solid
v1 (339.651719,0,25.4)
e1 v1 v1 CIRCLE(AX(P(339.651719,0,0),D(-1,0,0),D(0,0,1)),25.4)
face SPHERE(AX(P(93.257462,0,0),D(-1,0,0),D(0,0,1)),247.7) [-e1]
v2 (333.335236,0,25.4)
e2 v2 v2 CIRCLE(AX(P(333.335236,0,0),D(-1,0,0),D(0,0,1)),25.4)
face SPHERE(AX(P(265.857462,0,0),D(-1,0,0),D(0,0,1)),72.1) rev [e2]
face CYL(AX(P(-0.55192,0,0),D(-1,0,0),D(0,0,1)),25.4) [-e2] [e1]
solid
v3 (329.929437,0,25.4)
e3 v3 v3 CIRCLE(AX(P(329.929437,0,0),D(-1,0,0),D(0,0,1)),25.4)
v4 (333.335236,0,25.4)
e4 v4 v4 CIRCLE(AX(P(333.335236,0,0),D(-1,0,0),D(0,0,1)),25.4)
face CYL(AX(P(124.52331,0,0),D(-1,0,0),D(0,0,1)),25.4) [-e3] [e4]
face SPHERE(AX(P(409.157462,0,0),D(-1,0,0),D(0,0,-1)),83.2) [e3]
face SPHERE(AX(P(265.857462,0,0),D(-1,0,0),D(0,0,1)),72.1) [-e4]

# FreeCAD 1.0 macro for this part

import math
import FreeCAD as App
import Part
import Sketcher
Q = App.Units.Quantity

doc = App.newDocument("Part")
body = doc.addObject("PartDesign::Body", "Body")

# Sketch on XZ plane
sketch1 = body.newObject("Sketcher::SketchObject", "Sketch")
sketch1.AttachmentSupport = (doc.getObject("XZ_Plane"), [""])
sketch1.MapMode = "FlatFace"
sketch1.addGeometry([
    Part.ArcOfCircle(Part.Circle(App.Vector(409.2, 0, 0), App.Vector(0, 0, 1), 83.2), math.radians(180), math.radians(197.78)),
    Part.LineSegment(App.Vector(326, 0, 0), App.Vector(338, 0, 0)),
    Part.ArcOfCircle(Part.Circle(App.Vector(265.9, 0, 0), App.Vector(0, 0, 1), 72.1), math.radians(-21), math.radians(0)),
    Part.LineSegment(App.Vector(333.3, -25.4, 0), App.Vector(329.9, -25.4, 0)),
], False)
sketch1.addConstraint([
    Sketcher.Constraint("Coincident", 0, 1, 1, 1),
    Sketcher.Constraint("Coincident", 1, 2, 2, 2),
    Sketcher.Constraint("Coincident", 2, 1, 3, 1),
    Sketcher.Constraint("Coincident", 3, 2, 0, 2),
    Sketcher.Constraint("Horizontal", 1),
    Sketcher.Constraint("Horizontal", 3),
    Sketcher.Constraint("PointOnObject", 0, 3, -1),
    Sketcher.Constraint("PointOnObject", 2, 3, -1),
    Sketcher.Constraint("PointOnObject", 0, 1, -1),
    Sketcher.Constraint("Radius", 0, Q("83.2 mm")),
    Sketcher.Constraint("Radius", 2, Q("72.1 mm")),
    Sketcher.Constraint("DistanceX", 1, 1, 1, 2, Q("12 mm")),
    Sketcher.Constraint("DistanceY", 2, 1, -1, 1, Q("25.4 mm")),
    Sketcher.Constraint("DistanceX", -1, 1, 0, 3, Q("409.157462 mm")),
])
revolution = body.newObject("PartDesign::Revolution", "Revolution")
revolution.Profile = sketch1
revolution.ReferenceAxis = (sketch1, ["H_Axis"])
revolution.Angle = 360
body2 = doc.addObject("PartDesign::Body", "Body001")

# Sketch on XZ plane
sketch2 = body2.newObject("Sketcher::SketchObject", "Sketch001")
sketch2.AttachmentSupport = (doc.getObject("XZ_Plane001"), [""])
sketch2.MapMode = "FlatFace"
sketch2.addGeometry([
    Part.LineSegment(App.Vector(339.7, -25.4, 0), App.Vector(333.3, -25.4, 0)),
    Part.ArcOfCircle(Part.Circle(App.Vector(265.9, 0, 0), App.Vector(0, 0, 1), 72.1), math.radians(-21), math.radians(0)),
    Part.LineSegment(App.Vector(338, 0, 0), App.Vector(341, 0, 0)),
    Part.ArcOfCircle(Part.Circle(App.Vector(93.3, 0, 0), App.Vector(0, 0, 1), 247.7), math.radians(-5.89), math.radians(0)),
], False)
sketch2.addConstraint([
    Sketcher.Constraint("Coincident", 0, 2, 1, 1),
    Sketcher.Constraint("Coincident", 1, 2, 2, 1),
    Sketcher.Constraint("Coincident", 2, 2, 3, 2),
    Sketcher.Constraint("Coincident", 3, 1, 0, 1),
    Sketcher.Constraint("Horizontal", 0),
    Sketcher.Constraint("Horizontal", 2),
    Sketcher.Constraint("PointOnObject", 1, 3, -1),
    Sketcher.Constraint("PointOnObject", 3, 3, -1),
    Sketcher.Constraint("PointOnObject", 1, 2, -1),
    Sketcher.Constraint("Radius", 1, Q("72.1 mm")),
    Sketcher.Constraint("Radius", 3, Q("247.7 mm")),
    Sketcher.Constraint("DistanceX", 2, 1, 2, 2, Q("3 mm")),
    Sketcher.Constraint("DistanceY", 0, 2, -1, 1, Q("25.4 mm")),
    Sketcher.Constraint("DistanceX", -1, 1, 1, 3, Q("265.857462 mm")),
])
revolution2 = body2.newObject("PartDesign::Revolution", "Revolution001")
revolution2.Profile = sketch2
revolution2.ReferenceAxis = (sketch2, ["H_Axis"])
revolution2.Angle = 360

doc.recompute()
